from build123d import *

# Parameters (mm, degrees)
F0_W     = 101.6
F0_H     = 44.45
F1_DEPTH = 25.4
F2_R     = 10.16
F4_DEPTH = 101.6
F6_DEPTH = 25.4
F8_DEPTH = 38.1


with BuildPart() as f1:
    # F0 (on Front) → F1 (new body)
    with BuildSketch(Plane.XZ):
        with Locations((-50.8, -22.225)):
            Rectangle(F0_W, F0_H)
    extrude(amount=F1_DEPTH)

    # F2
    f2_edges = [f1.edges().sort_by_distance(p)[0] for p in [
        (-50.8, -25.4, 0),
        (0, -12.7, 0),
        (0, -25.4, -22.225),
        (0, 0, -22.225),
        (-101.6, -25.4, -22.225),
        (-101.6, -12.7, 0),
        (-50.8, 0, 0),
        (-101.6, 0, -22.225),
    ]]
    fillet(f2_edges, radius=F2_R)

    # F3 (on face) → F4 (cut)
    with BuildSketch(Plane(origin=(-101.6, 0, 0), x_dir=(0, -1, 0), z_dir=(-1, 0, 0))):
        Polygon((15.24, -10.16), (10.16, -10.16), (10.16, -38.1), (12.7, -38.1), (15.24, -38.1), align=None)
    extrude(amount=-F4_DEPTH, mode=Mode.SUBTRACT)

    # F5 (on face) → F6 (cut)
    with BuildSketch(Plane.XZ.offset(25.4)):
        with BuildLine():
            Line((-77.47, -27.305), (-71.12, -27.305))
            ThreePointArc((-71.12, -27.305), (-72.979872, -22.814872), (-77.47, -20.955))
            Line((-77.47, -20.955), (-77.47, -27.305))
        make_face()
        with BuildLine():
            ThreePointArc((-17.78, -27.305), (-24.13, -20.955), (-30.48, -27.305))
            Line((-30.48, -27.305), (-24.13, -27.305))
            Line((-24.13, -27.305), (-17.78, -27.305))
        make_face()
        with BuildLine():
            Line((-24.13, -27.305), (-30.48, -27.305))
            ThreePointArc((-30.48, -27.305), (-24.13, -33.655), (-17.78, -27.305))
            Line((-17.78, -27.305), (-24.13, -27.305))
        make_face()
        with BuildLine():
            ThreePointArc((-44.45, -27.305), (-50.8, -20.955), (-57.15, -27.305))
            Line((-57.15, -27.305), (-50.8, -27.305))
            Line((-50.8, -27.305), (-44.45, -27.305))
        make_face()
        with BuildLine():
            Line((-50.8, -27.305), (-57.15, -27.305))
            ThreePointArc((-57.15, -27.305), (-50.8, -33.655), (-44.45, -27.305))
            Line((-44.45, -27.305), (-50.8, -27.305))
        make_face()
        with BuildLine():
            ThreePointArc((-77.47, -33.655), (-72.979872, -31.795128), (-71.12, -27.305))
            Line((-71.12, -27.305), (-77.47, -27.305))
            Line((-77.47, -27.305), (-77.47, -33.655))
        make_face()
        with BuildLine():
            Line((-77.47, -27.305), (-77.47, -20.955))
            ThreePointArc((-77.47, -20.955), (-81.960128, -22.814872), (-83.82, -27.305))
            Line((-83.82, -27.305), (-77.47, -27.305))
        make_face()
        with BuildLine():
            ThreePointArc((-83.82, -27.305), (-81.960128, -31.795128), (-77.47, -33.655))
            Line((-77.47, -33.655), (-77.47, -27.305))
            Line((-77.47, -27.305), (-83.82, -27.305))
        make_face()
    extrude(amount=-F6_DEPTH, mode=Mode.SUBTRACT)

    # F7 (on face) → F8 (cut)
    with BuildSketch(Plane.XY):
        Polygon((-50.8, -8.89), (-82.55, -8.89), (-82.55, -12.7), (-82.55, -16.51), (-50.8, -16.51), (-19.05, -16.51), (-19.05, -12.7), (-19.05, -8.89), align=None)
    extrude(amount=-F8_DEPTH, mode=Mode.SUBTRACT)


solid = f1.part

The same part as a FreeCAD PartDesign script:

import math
import FreeCAD as App
import Part
import Sketcher

V = App.Vector
Q = App.Units.Quantity


def edges_at(feature, points):
    """Names of the edges that pass closest to the given points."""
    edges = feature.Shape.Edges
    near = lambda p: min(range(len(edges)), key=lambda i: edges[i].distToShape(Part.Vertex(*p))[0])
    return sorted({f"Edge{near(p) + 1}" for p in points})

doc = App.newDocument("Part")
body = doc.addObject("PartDesign::Body", "Body")

sketch1 = doc.addObject("Sketcher::SketchObject", "Sketch")
body.addObject(sketch1)
sketch1.AttachmentSupport = (doc.XZ_Plane, [""])
sketch1.MapMode = "FlatFace"
sketch1.addGeometry(Part.LineSegment(V(-102, 0, 0), V(-102, -44, 0)), False)
sketch1.addGeometry(Part.LineSegment(V(-102, -44, 0), V(0, -44, 0)), False)
sketch1.addGeometry(Part.LineSegment(V(0, -44, 0), V(0, 0, 0)), False)
sketch1.addGeometry(Part.LineSegment(V(0, 0, 0), V(-102, 0, 0)), False)
sketch1.addConstraint(Sketcher.Constraint("Coincident", 0, 2, 1, 1))
sketch1.addConstraint(Sketcher.Constraint("Coincident", 1, 2, 2, 1))
sketch1.addConstraint(Sketcher.Constraint("Coincident", 2, 2, 3, 1))
sketch1.addConstraint(Sketcher.Constraint("Coincident", 3, 2, 0, 1))
sketch1.addConstraint(Sketcher.Constraint("Vertical", 0))
sketch1.addConstraint(Sketcher.Constraint("Horizontal", 1))
sketch1.addConstraint(Sketcher.Constraint("Vertical", 2))
sketch1.addConstraint(Sketcher.Constraint("Horizontal", 3))
sketch1.addConstraint(Sketcher.Constraint("Coincident", 2, 2, -1, 1))
sketch1.addConstraint(Sketcher.Constraint("DistanceX", 1, 1, 1, 2, Q("4 in")))
sketch1.addConstraint(Sketcher.Constraint("DistanceY", 0, 2, 0, 1, Q("1.75 in")))
pad1 = doc.addObject("PartDesign::Pad", "Pad")
body.addObject(pad1)
pad1.Profile = sketch1
pad1.Length = Q("1 in")
doc.recompute()

fillet = doc.addObject("PartDesign::Fillet", "Fillet")
body.addObject(fillet)
fillet.Base = (pad1, edges_at(pad1, [
    (-50.8, -25.4, 0),
    (0, -12.7, 0),
    (0, -25.4, -22.225),
    (0, 0, -22.225),
    (-101.6, -25.4, -22.225),
    (-101.6, -12.7, 0),
    (-50.8, 0, 0),
    (-101.6, 0, -22.225),
]))
fillet.Radius = Q("0.4 in")

sketch2 = doc.addObject("Sketcher::SketchObject", "Sketch001")
body.addObject(sketch2)
sketch2.AttachmentSupport = (doc.YZ_Plane, [""])
sketch2.MapMode = "FlatFace"
sketch2.AttachmentOffset = App.Placement(V(0, 0, -4 * 25.4), App.Rotation())
sketch2.addGeometry(Part.LineSegment(V(-15, -10, 0), V(-10, -10, 0)), False)
sketch2.addGeometry(Part.LineSegment(V(-10, -10, 0), V(-10, -38, 0)), False)
sketch2.addGeometry(Part.LineSegment(V(-10, -38, 0), V(-15, -38, 0)), False)
sketch2.addGeometry(Part.LineSegment(V(-15, -38, 0), V(-15, -10, 0)), False)
sketch2.addConstraint(Sketcher.Constraint("Coincident", 0, 2, 1, 1))
sketch2.addConstraint(Sketcher.Constraint("Coincident", 1, 2, 2, 1))
sketch2.addConstraint(Sketcher.Constraint("Coincident", 2, 2, 3, 1))
sketch2.addConstraint(Sketcher.Constraint("Coincident", 3, 2, 0, 1))
sketch2.addConstraint(Sketcher.Constraint("Horizontal", 0))
sketch2.addConstraint(Sketcher.Constraint("Vertical", 1))
sketch2.addConstraint(Sketcher.Constraint("Horizontal", 2))
sketch2.addConstraint(Sketcher.Constraint("Vertical", 3))
sketch2.addConstraint(Sketcher.Constraint("DistanceX", 0, 1, 0, 2, Q("0.2 in")))
sketch2.addConstraint(Sketcher.Constraint("DistanceY", 1, 2, 1, 1, Q("1.1 in")))
sketch2.addConstraint(Sketcher.Constraint("DistanceX", 0, 2, -1, 1, Q("0.4 in")))
sketch2.addConstraint(Sketcher.Constraint("DistanceY", 0, 2, -1, 1, Q("0.4 in")))
pocket1 = doc.addObject("PartDesign::Pocket", "Pocket")
body.addObject(pocket1)
pocket1.Profile = sketch2
pocket1.Length = Q("4 in")
pocket1.Reversed = True

sketch3 = doc.addObject("Sketcher::SketchObject", "Sketch002")
body.addObject(sketch3)
sketch3.AttachmentSupport = (doc.XZ_Plane, [""])
sketch3.MapMode = "FlatFace"
sketch3.AttachmentOffset = App.Placement(V(0, 0, 1 * 25.4), App.Rotation())
sketch3.addGeometry(Part.ArcOfCircle(Part.Circle(V(-77, -27, 0), V(0, 0, 1), 6), math.radians(0), math.radians(90)), False)
sketch3.addGeometry(Part.ArcOfCircle(Part.Circle(V(-77, -27, 0), V(0, 0, 1), 6), math.radians(90), math.radians(180)), False)
sketch3.addGeometry(Part.ArcOfCircle(Part.Circle(V(-77, -27, 0), V(0, 0, 1), 6), math.radians(-180), math.radians(-90)), False)
sketch3.addGeometry(Part.ArcOfCircle(Part.Circle(V(-77, -27, 0), V(0, 0, 1), 6), math.radians(-90), math.radians(0)), False)
sketch3.addGeometry(Part.Circle(V(-24, -27, 0), V(0, 0, 1), 6), False)
sketch3.addGeometry(Part.Circle(V(-51, -27, 0), V(0, 0, 1), 6), False)
sketch3.addConstraint(Sketcher.Constraint("Tangent", 0, 2, 1, 1))
sketch3.addConstraint(Sketcher.Constraint("Tangent", 1, 2, 2, 1))
sketch3.addConstraint(Sketcher.Constraint("Tangent", 2, 2, 3, 1))
sketch3.addConstraint(Sketcher.Constraint("Tangent", 3, 2, 0, 1))
sketch3.addConstraint(Sketcher.Constraint("Equal", 0, 1))
sketch3.addConstraint(Sketcher.Constraint("Equal", 3, 4))
sketch3.addConstraint(Sketcher.Constraint("Equal", 4, 5))
sketch3.addConstraint(Sketcher.Constraint("Horizontal", 3, 3, 4, 3))
sketch3.addConstraint(Sketcher.Constraint("Horizontal", 4, 3, 5, 3))
sketch3.addConstraint(Sketcher.Constraint("Horizontal", 5, 3, 1, 2))
sketch3.addConstraint(Sketcher.Constraint("Horizontal", 1, 2, 3, 2))
sketch3.addConstraint(Sketcher.Constraint("Vertical", 3, 3, 0, 2))
sketch3.addConstraint(Sketcher.Constraint("Vertical", 0, 2, 2, 2))
sketch3.addConstraint(Sketcher.Constraint("Diameter", 4, Q("0.5 in")))
sketch3.addConstraint(Sketcher.Constraint("DistanceX", 5, 3, -1, 1, Q("2 in")))
sketch3.addConstraint(Sketcher.Constraint("DistanceX", 1, 2, -1, 1, Q("3.3 in")))
sketch3.addConstraint(Sketcher.Constraint("DistanceX", 1, 3, 4, 3, Q("2.1 in")))
sketch3.addConstraint(Sketcher.Constraint("DistanceY", 0, 3, -1, 1, Q("1.075 in")))
pocket2 = doc.addObject("PartDesign::Pocket", "Pocket001")
body.addObject(pocket2)
pocket2.Profile = sketch3
pocket2.Length = Q("1 in")

sketch4 = doc.addObject("Sketcher::SketchObject", "Sketch003")
body.addObject(sketch4)
sketch4.AttachmentSupport = (doc.XY_Plane, [""])
sketch4.MapMode = "FlatFace"
sketch4.addGeometry(Part.LineSegment(V(-83, -9, 0), V(-83, -17, 0)), False)
sketch4.addGeometry(Part.LineSegment(V(-83, -17, 0), V(-19, -17, 0)), False)
sketch4.addGeometry(Part.LineSegment(V(-19, -17, 0), V(-19, -9, 0)), False)
sketch4.addGeometry(Part.LineSegment(V(-19, -9, 0), V(-83, -9, 0)), False)
sketch4.addConstraint(Sketcher.Constraint("Coincident", 0, 2, 1, 1))
sketch4.addConstraint(Sketcher.Constraint("Coincident", 1, 2, 2, 1))
sketch4.addConstraint(Sketcher.Constraint("Coincident", 2, 2, 3, 1))
sketch4.addConstraint(Sketcher.Constraint("Coincident", 3, 2, 0, 1))
sketch4.addConstraint(Sketcher.Constraint("Vertical", 0))
sketch4.addConstraint(Sketcher.Constraint("Horizontal", 1))
sketch4.addConstraint(Sketcher.Constraint("Vertical", 2))
sketch4.addConstraint(Sketcher.Constraint("Horizontal", 3))
sketch4.addConstraint(Sketcher.Constraint("DistanceX", 1, 1, 1, 2, Q("2.5 in")))
sketch4.addConstraint(Sketcher.Constraint("DistanceY", 0, 2, 0, 1, Q("0.3 in")))
sketch4.addConstraint(Sketcher.Constraint("DistanceX", 0, 2, -1, 1, Q("3.25 in")))
sketch4.addConstraint(Sketcher.Constraint("DistanceY", 0, 2, -1, 1, Q("0.65 in")))
pocket3 = doc.addObject("PartDesign::Pocket", "Pocket002")
body.addObject(pocket3)
pocket3.Profile = sketch4
pocket3.Length = Q("1.5 in")

doc.recompute()
